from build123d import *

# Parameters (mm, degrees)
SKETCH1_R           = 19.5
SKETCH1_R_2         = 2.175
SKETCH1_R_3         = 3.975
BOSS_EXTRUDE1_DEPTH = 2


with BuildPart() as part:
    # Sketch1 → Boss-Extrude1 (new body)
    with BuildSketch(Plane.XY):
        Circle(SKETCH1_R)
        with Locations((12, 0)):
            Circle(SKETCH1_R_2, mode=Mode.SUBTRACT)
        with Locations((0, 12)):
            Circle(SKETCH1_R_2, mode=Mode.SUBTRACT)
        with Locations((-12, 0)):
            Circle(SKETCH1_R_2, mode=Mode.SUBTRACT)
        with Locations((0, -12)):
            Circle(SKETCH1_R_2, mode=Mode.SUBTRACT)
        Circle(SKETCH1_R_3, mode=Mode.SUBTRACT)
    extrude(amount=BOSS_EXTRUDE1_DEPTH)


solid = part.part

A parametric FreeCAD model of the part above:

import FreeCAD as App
import Part
import Sketcher

doc = App.newDocument("Part")
body = doc.addObject("PartDesign::Body", "Body")

sketch1 = body.newObject("Sketcher::SketchObject", "Sketch")
sketch1.AttachmentSupport = (doc.getObject("XY_Plane"), [""])
sketch1.MapMode = "FlatFace"
sketch1.addGeometry(Part.Circle(App.Vector(0, 0, 0), App.Vector(0, 0, 1), 19.5), False)
sketch1.addGeometry(Part.Circle(App.Vector(0, -12, 0), App.Vector(0, 0, 1), 2.2), False)
sketch1.addGeometry(Part.Circle(App.Vector(-12, 0, 0), App.Vector(0, 0, 1), 2.2), False)
sketch1.addGeometry(Part.Circle(App.Vector(0, 0, 0), App.Vector(0, 0, 1), 4), False)
sketch1.addGeometry(Part.Circle(App.Vector(12, 0, 0), App.Vector(0, 0, 1), 2.2), False)
sketch1.addGeometry(Part.Circle(App.Vector(0, 12, 0), App.Vector(0, 0, 1), 2.2), False)
sketch1.addConstraint(Sketcher.Constraint("Coincident", 0, 3, -1, 1))
sketch1.addConstraint(Sketcher.Constraint("Coincident", 3, 3, -1, 1))
sketch1.addConstraint(Sketcher.Constraint("Equal", 1, 2))
sketch1.addConstraint(Sketcher.Constraint("Equal", 2, 4))
sketch1.addConstraint(Sketcher.Constraint("Equal", 4, 5))
sketch1.addConstraint(Sketcher.Constraint("Symmetric", 2, 3, 4, 3, -1, 1))
sketch1.addConstraint(Sketcher.Constraint("Symmetric", 1, 3, 5, 3, -1, 1))
sketch1.addConstraint(Sketcher.Constraint("PointOnObject", 1, 3, -2))
sketch1.addConstraint(Sketcher.Constraint("PointOnObject", 2, 3, -1))
sketch1.addConstraint(Sketcher.Constraint("Diameter", 0, 39.0))
sketch1.addConstraint(Sketcher.Constraint("Diameter", 1, 4.35))
sketch1.addConstraint(Sketcher.Constraint("Diameter", 3, 7.95))
sketch1.addConstraint(Sketcher.Constraint("DistanceY", 1, 3, -1, 1, 12.0))
sketch1.addConstraint(Sketcher.Constraint("DistanceX", 2, 3, -1, 1, 12.0))
pad1 = body.newObject("PartDesign::Pad", "Pad")
pad1.Profile = sketch1
pad1.Length = 2

doc.recompute()
